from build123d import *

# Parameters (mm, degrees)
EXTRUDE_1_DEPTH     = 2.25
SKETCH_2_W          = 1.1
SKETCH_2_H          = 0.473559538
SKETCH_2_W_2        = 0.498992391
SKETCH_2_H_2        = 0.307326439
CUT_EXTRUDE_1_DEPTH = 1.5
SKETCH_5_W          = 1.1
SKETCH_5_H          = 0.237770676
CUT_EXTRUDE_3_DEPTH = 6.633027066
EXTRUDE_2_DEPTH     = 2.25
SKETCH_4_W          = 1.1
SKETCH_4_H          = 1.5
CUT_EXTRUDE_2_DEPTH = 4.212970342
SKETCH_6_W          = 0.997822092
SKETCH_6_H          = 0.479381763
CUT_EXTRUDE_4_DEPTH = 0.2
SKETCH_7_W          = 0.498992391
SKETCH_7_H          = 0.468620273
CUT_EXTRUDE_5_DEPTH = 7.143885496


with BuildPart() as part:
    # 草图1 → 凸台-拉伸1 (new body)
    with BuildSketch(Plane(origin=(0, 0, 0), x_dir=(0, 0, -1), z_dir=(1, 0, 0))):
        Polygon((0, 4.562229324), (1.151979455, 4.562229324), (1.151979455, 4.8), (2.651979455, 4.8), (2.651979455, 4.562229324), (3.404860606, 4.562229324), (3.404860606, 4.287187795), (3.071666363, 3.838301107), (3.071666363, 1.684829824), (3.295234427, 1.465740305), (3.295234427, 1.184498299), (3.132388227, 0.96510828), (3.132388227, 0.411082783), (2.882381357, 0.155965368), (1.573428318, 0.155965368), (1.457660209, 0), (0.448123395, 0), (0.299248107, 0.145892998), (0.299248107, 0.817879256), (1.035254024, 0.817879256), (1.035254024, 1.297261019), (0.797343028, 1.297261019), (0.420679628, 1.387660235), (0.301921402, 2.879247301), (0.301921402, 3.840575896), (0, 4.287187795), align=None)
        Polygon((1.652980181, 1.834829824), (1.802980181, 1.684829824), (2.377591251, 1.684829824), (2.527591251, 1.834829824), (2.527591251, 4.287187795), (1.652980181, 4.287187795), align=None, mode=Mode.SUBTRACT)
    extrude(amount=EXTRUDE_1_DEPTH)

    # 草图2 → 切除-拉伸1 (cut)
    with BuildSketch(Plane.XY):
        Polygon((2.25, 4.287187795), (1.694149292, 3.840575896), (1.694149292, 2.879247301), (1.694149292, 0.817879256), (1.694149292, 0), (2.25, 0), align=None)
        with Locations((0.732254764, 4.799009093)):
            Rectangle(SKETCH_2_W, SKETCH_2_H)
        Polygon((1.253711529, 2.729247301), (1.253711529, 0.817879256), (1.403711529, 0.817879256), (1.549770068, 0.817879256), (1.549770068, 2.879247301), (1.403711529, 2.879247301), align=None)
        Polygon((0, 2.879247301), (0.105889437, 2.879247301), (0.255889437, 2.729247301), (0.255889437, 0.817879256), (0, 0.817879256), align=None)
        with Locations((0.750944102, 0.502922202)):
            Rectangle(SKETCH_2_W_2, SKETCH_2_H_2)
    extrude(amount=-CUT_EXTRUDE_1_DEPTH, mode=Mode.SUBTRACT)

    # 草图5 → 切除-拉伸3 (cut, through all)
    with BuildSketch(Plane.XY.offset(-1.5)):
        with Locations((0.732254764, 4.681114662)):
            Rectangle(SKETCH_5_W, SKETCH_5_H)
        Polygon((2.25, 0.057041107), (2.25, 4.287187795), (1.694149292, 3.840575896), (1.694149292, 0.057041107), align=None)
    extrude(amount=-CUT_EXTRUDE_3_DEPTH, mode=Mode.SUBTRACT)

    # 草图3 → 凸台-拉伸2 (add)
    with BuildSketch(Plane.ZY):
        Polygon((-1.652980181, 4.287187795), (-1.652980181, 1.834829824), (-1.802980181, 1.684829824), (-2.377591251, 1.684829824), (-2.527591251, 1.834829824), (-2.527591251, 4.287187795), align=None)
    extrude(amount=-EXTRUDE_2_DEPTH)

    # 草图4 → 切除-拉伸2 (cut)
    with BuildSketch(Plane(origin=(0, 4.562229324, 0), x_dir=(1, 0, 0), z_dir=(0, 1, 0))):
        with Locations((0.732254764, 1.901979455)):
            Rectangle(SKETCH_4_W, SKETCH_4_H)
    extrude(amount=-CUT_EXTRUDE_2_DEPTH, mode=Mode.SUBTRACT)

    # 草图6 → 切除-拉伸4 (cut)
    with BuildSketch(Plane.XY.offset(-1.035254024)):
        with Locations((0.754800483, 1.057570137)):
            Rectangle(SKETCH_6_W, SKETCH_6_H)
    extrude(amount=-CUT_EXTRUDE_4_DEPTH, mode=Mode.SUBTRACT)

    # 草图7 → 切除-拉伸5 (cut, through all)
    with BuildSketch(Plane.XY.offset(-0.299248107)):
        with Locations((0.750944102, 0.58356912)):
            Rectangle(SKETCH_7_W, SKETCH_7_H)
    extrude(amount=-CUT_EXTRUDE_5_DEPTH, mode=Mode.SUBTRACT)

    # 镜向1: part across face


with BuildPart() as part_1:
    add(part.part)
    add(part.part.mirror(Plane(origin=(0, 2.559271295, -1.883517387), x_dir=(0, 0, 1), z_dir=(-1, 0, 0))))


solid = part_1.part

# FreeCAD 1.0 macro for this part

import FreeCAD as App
import Part
import Sketcher

V = App.Vector


def add_polygon(sketch, points):
    """Adds a closed chain of lines whose ends are joined by coincident constraints."""
    first, n = sketch.GeometryCount, len(points)
    for a, b in zip(points, points[1:] + points[:1]):
        sketch.addGeometry(Part.LineSegment(App.Vector(*a, 0), App.Vector(*b, 0)), False)
    for i in range(n):
        sketch.addConstraint(Sketcher.Constraint("Coincident", first + i, 2, first + (i + 1) % n, 1))

doc = App.newDocument("Part")
body = doc.addObject("PartDesign::Body", "Body")

# Sketch on YZ plane
sketch1 = body.newObject("Sketcher::SketchObject", "Sketch")
sketch1.AttachmentSupport = (doc.getObject("YZ_Plane"), [""])
sketch1.MapMode = "FlatFace"
add_polygon(sketch1, [(4.56, -1.15), (4.56, 0), (4.29, 0), (3.84, -0.3), (2.88, -0.3), (1.39, -0.42), (1.3, -0.8), (1.3, -1.04), (0.82, -1.04), (0.82, -0.3), (0.15, -0.3), (0, -0.45), (0, -1.46), (0.16, -1.57), (0.16, -2.88), (0.41, -3.13), (0.97, -3.13), (1.18, -3.3), (1.47, -3.3), (1.68, -3.07), (3.84, -3.07), (4.29, -3.4), (4.56, -3.4), (4.56, -2.65), (4.8, -2.65), (4.8, -1.15)])  # lines 0-25
add_polygon(sketch1, [(1.83, -1.65), (4.29, -1.65), (4.29, -2.53), (1.83, -2.53), (1.68, -2.38), (1.68, -1.8)])  # lines 26-31
sketch1.addConstraint(Sketcher.Constraint("Vertical", 0))
sketch1.addConstraint(Sketcher.Constraint("Horizontal", 1))
sketch1.addConstraint(Sketcher.Constraint("Horizontal", 3))
sketch1.addConstraint(Sketcher.Constraint("Vertical", 6))
sketch1.addConstraint(Sketcher.Constraint("Horizontal", 7))
sketch1.addConstraint(Sketcher.Constraint("Vertical", 8))
sketch1.addConstraint(Sketcher.Constraint("Horizontal", 9))
sketch1.addConstraint(Sketcher.Constraint("Vertical", 11))
sketch1.addConstraint(Sketcher.Constraint("Vertical", 13))
sketch1.addConstraint(Sketcher.Constraint("Horizontal", 15))
sketch1.addConstraint(Sketcher.Constraint("Horizontal", 17))
sketch1.addConstraint(Sketcher.Constraint("Horizontal", 19))
sketch1.addConstraint(Sketcher.Constraint("Horizontal", 21))
sketch1.addConstraint(Sketcher.Constraint("Vertical", 22))
sketch1.addConstraint(Sketcher.Constraint("Horizontal", 23))
sketch1.addConstraint(Sketcher.Constraint("Vertical", 24))
sketch1.addConstraint(Sketcher.Constraint("Horizontal", 25))
sketch1.addConstraint(Sketcher.Constraint("Horizontal", 26))
sketch1.addConstraint(Sketcher.Constraint("Vertical", 27))
sketch1.addConstraint(Sketcher.Constraint("Horizontal", 28))
sketch1.addConstraint(Sketcher.Constraint("Vertical", 30))
sketch1.addConstraint(Sketcher.Constraint("PointOnObject", 0, 2, -1))
sketch1.addConstraint(Sketcher.Constraint("PointOnObject", 10, 2, -2))
sketch1.addConstraint(Sketcher.Constraint("Perpendicular", 10, 14))
sketch1.addConstraint(Sketcher.Constraint("Parallel", 12, 16))
sketch1.addConstraint(Sketcher.Constraint("Perpendicular", 14, 18))
sketch1.addConstraint(Sketcher.Constraint("Parallel", 16, 20))
sketch1.addConstraint(Sketcher.Constraint("Perpendicular", 29, 31))
sketch1.addConstraint(Sketcher.Constraint("Vertical", 1, 2, 20, 2))
sketch1.addConstraint(Sketcher.Constraint("Vertical", 0, 2, 21, 2))
sketch1.addConstraint(Sketcher.Constraint("Vertical", 20, 2, 26, 2))
sketch1.addConstraint(Sketcher.Constraint("Vertical", 18, 2, 29, 2))
sketch1.addConstraint(Sketcher.Constraint("Vertical", 28, 2, 31, 2))
sketch1.addConstraint(Sketcher.Constraint("Equal", 29, 31))
sketch1.addConstraint(Sketcher.Constraint("DistanceY", 24, 1, 24, 2, 1.5))
sketch1.addConstraint(Sketcher.Constraint("DistanceX", -1, 1, 23, 2, 4.8))
sketch1.addConstraint(Sketcher.Constraint("DistanceX", 18, 2, 28, 2, 0.15))
sketch1.addConstraint(Sketcher.Constraint("DistanceY", 26, 2, 25, 2, 0.501001))
sketch1.addConstraint(Sketcher.Constraint("DistanceX", 1, 2, 1, 1, 0.275042))
sketch1.addConstraint(Sketcher.Constraint("DistanceX", 3, 2, 3, 1, 0.961329))
sketch1.addConstraint(Sketcher.Constraint("DistanceX", 7, 2, 7, 1, 0.479382))
sketch1.addConstraint(Sketcher.Constraint("DistanceX", 19, 1, 19, 2, 2.153471))
sketch1.addConstraint(Sketcher.Constraint("DistanceX", 23, 1, 23, 2, 0.237771))
sketch1.addConstraint(Sketcher.Constraint("DistanceY", 0, 1, 0, 2, 1.151979))
sketch1.addConstraint(Sketcher.Constraint("DistanceY", 6, 2, 6, 1, 0.237911))
sketch1.addConstraint(Sketcher.Constraint("DistanceY", 22, 1, 22, 2, 0.752881))
sketch1.addConstraint(Sketcher.Constraint("DistanceY", 27, 2, 27, 1, 0.874611))
sketch1.addConstraint(Sketcher.Constraint("DistanceX", -1, 1, 16, 2, 1.184498))
sketch1.addConstraint(Sketcher.Constraint("DistanceX", -1, 1, 19, 2, 3.838301))
sketch1.addConstraint(Sketcher.Constraint("DistanceX", 5, 2, 4, 2, 0.090399))
sketch1.addConstraint(Sketcher.Constraint("Distance", 2, 0.539091))
sketch1.addConstraint(Sketcher.Constraint("Distance", 5, 0.387359))
sketch1.addConstraint(Sketcher.Constraint("DistanceX", 9, 2, 9, 1, 0.671986))
sketch1.addConstraint(Sketcher.Constraint("DistanceX", 15, 1, 15, 2, 0.554025))
sketch1.addConstraint(Sketcher.Constraint("DistanceX", 17, 1, 17, 2, 0.281242))
sketch1.addConstraint(Sketcher.Constraint("DistanceY", 8, 1, 8, 2, 0.736006))
sketch1.addConstraint(Sketcher.Constraint("DistanceY", 11, 2, 11, 1, 1.009537))
sketch1.addConstraint(Sketcher.Constraint("DistanceY", 13, 2, 13, 1, 1.308953))
sketch1.addConstraint(Sketcher.Constraint("DistanceY", 2, 2, -1, 1, 0.301921))
sketch1.addConstraint(Sketcher.Constraint("DistanceX", -1, 1, 4, 2, 1.38766))
sketch1.addConstraint(Sketcher.Constraint("DistanceY", 4, 2, -1, 1, 0.42068))
sketch1.addConstraint(Sketcher.Constraint("DistanceY", 11, 2, -1, 1, 1.45766))
sketch1.addConstraint(Sketcher.Constraint("DistanceY", 12, 2, -1, 1, 1.573428))
sketch1.addConstraint(Sketcher.Constraint("DistanceY", 14, 2, -1, 1, 3.132388))
pad1 = body.newObject("PartDesign::Pad", "Pad")
pad1.Profile = sketch1
pad1.Length = 2.25

# Sketch on XY plane
sketch2 = body.newObject("Sketcher::SketchObject", "Sketch001")
sketch2.AttachmentSupport = (doc.getObject("XY_Plane"), [""])
sketch2.MapMode = "FlatFace"
add_polygon(sketch2, [(2.25, 4.29), (1.69, 3.84), (1.69, 0), (2.25, 0)])  # lines 0-3
add_polygon(sketch2, [(0.18, 5.04), (0.18, 4.56), (1.28, 4.56), (1.28, 5.04)])  # lines 4-7
add_polygon(sketch2, [(1.25, 2.73), (1.25, 0.82), (1.55, 0.82), (1.55, 2.88), (1.4, 2.88)])  # lines 8-12
add_polygon(sketch2, [(0.11, 2.88), (0, 2.88), (0, 0.82), (0.26, 0.82), (0.26, 2.73)])  # lines 13-17
add_polygon(sketch2, [(0.5, 0.66), (0.5, 0.35), (1, 0.35), (1, 0.66)])  # lines 18-21
sketch2.addConstraint(Sketcher.Constraint("Vertical", 1))
sketch2.addConstraint(Sketcher.Constraint("Horizontal", 2))
sketch2.addConstraint(Sketcher.Constraint("Vertical", 3))
sketch2.addConstraint(Sketcher.Constraint("Vertical", 4))
sketch2.addConstraint(Sketcher.Constraint("Horizontal", 5))
sketch2.addConstraint(Sketcher.Constraint("Vertical", 6))
sketch2.addConstraint(Sketcher.Constraint("Horizontal", 7))
sketch2.addConstraint(Sketcher.Constraint("Vertical", 8))
sketch2.addConstraint(Sketcher.Constraint("Horizontal", 9))
sketch2.addConstraint(Sketcher.Constraint("Vertical", 10))
sketch2.addConstraint(Sketcher.Constraint("Horizontal", 11))
sketch2.addConstraint(Sketcher.Constraint("Horizontal", 13))
sketch2.addConstraint(Sketcher.Constraint("Vertical", 14))
sketch2.addConstraint(Sketcher.Constraint("Horizontal", 15))
sketch2.addConstraint(Sketcher.Constraint("Vertical", 16))
sketch2.addConstraint(Sketcher.Constraint("Vertical", 18))
sketch2.addConstraint(Sketcher.Constraint("Horizontal", 19))
sketch2.addConstraint(Sketcher.Constraint("Vertical", 20))
sketch2.addConstraint(Sketcher.Constraint("Horizontal", 21))
sketch2.addConstraint(Sketcher.Constraint("PointOnObject", 1, 2, -1))
sketch2.addConstraint(Sketcher.Constraint("PointOnObject", 13, 2, -2))
sketch2.addConstraint(Sketcher.Constraint("Perpendicular", 12, 17))
sketch2.addConstraint(Sketcher.Constraint("Horizontal", 11, 2, 13, 2))
sketch2.addConstraint(Sketcher.Constraint("Horizontal", 9, 2, 14, 2))
sketch2.addConstraint(Sketcher.Constraint("Horizontal", 12, 2, 16, 2))
sketch2.addConstraint(Sketcher.Constraint("Equal", 12, 17))
sketch2.addConstraint(Sketcher.Constraint("DistanceX", 5, 1, 5, 2, 1.1))
sketch2.addConstraint(Sketcher.Constraint("DistanceX", -1, 1, 2, 2, 2.25))
sketch2.addConstraint(Sketcher.Constraint("DistanceX", 12, 2, 11, 2, 0.15))
sketch2.addConstraint(Sketcher.Constraint("DistanceX", 2, 1, 2, 2, 0.555851))
sketch2.addConstraint(Sketcher.Constraint("DistanceX", 9, 1, 9, 2, 0.296059))
sketch2.addConstraint(Sketcher.Constraint("DistanceX", 13, 2, 13, 1, 0.105889))
sketch2.addConstraint(Sketcher.Constraint("DistanceY", 4, 2, 4, 1, 0.47356))
sketch2.addConstraint(Sketcher.Constraint("DistanceY", 8, 2, 8, 1, 1.911368))
sketch2.addConstraint(Sketcher.Constraint("DistanceY", 3, 2, 6, 2, 0.748601))
sketch2.addConstraint(Sketcher.Constraint("DistanceX", 18, 2, 1, 2, 1.192701))
sketch2.addConstraint(Sketcher.Constraint("DistanceX", 19, 1, 19, 2, 0.498992))
sketch2.addConstraint(Sketcher.Constraint("DistanceY", 1, 2, 1, 1, 3.840576))
sketch2.addConstraint(Sketcher.Constraint("DistanceY", 3, 1, 3, 2, 4.287188))
sketch2.addConstraint(Sketcher.Constraint("DistanceY", 18, 2, 18, 1, 0.307326))
sketch2.addConstraint(Sketcher.Constraint("DistanceX", -1, 1, 8, 2, 1.253712))
sketch2.addConstraint(Sketcher.Constraint("DistanceY", -1, 1, 8, 2, 0.817879))
sketch2.addConstraint(Sketcher.Constraint("DistanceY", -1, 1, 18, 2, 0.349259))
sketch2.addConstraint(Sketcher.Constraint("DistanceX", -1, 1, 4, 2, 0.182255))
pocket1 = body.newObject("PartDesign::Pocket", "Pocket")
pocket1.Profile = sketch2
pocket1.Length = 1.5

# Sketch on XY plane
sketch3 = body.newObject("Sketcher::SketchObject", "Sketch002")
sketch3.AttachmentSupport = (doc.getObject("XY_Plane"), [""])
sketch3.MapMode = "FlatFace"
sketch3.AttachmentOffset = App.Placement(V(0, 0, -1.5), App.Rotation())
add_polygon(sketch3, [(0.18, 4.8), (0.18, 4.56), (1.28, 4.56), (1.28, 4.8)])  # lines 0-3
add_polygon(sketch3, [(2.25, 0.06), (2.25, 4.29), (1.69, 3.84), (1.69, 0.06)])  # lines 4-7
sketch3.addConstraint(Sketcher.Constraint("Vertical", 0))
sketch3.addConstraint(Sketcher.Constraint("Horizontal", 1))
sketch3.addConstraint(Sketcher.Constraint("Vertical", 2))
sketch3.addConstraint(Sketcher.Constraint("Horizontal", 3))
sketch3.addConstraint(Sketcher.Constraint("Vertical", 4))
sketch3.addConstraint(Sketcher.Constraint("Vertical", 6))
sketch3.addConstraint(Sketcher.Constraint("Horizontal", 7))
sketch3.addConstraint(Sketcher.Constraint("DistanceX", 1, 1, 1, 2, 1.1))
sketch3.addConstraint(Sketcher.Constraint("DistanceY", -1, 1, 2, 2, 4.8))
sketch3.addConstraint(Sketcher.Constraint("DistanceX", -1, 1, 4, 2, 2.25))
sketch3.addConstraint(Sketcher.Constraint("DistanceX", 7, 1, 7, 2, 0.555851))
sketch3.addConstraint(Sketcher.Constraint("DistanceY", 0, 2, 0, 1, 0.237771))
sketch3.addConstraint(Sketcher.Constraint("DistanceY", 4, 1, 4, 2, 4.230147))
sketch3.addConstraint(Sketcher.Constraint("DistanceY", 6, 2, 6, 1, 3.783535))
sketch3.addConstraint(Sketcher.Constraint("DistanceY", -1, 1, 6, 2, 0.057041))
sketch3.addConstraint(Sketcher.Constraint("DistanceX", -1, 1, 0, 2, 0.182255))
pocket2 = body.newObject("PartDesign::Pocket", "Pocket001")
pocket2.Profile = sketch3
pocket2.Type = "ThroughAll"

# Sketch on YZ plane
sketch4 = body.newObject("Sketcher::SketchObject", "Sketch003")
sketch4.AttachmentSupport = (doc.getObject("YZ_Plane"), [""])
sketch4.MapMode = "FlatFace"
add_polygon(sketch4, [(1.83, -1.65), (4.29, -1.65), (4.29, -2.53), (1.83, -2.53), (1.68, -2.38), (1.68, -1.8)])  # lines 0-5
sketch4.addConstraint(Sketcher.Constraint("Horizontal", 0))
sketch4.addConstraint(Sketcher.Constraint("Vertical", 1))
sketch4.addConstraint(Sketcher.Constraint("Horizontal", 2))
sketch4.addConstraint(Sketcher.Constraint("Vertical", 4))
sketch4.addConstraint(Sketcher.Constraint("Perpendicular", 3, 5))
sketch4.addConstraint(Sketcher.Constraint("Vertical", 2, 2, 5, 2))
sketch4.addConstraint(Sketcher.Constraint("Equal", 3, 5))
sketch4.addConstraint(Sketcher.Constraint("DistanceX", 3, 2, 2, 2, 0.15))
sketch4.addConstraint(Sketcher.Constraint("DistanceY", 1, 2, 1, 1, 0.874611))
sketch4.addConstraint(Sketcher.Constraint("DistanceX", 0, 1, 0, 2, 2.452358))
sketch4.addConstraint(Sketcher.Constraint("DistanceY", 0, 2, -1, 1, 1.65298))
sketch4.addConstraint(Sketcher.Constraint("DistanceX", -1, 1, 2, 2, 1.83483))
pad2 = body.newObject("PartDesign::Pad", "Pad001")
pad2.Profile = sketch4
pad2.Length = 2.25

# Sketch on XZ plane
sketch5 = body.newObject("Sketcher::SketchObject", "Sketch004")
sketch5.AttachmentSupport = (doc.getObject("XZ_Plane"), [""])
sketch5.MapMode = "FlatFace"
sketch5.AttachmentOffset = App.Placement(V(0, 0, -4.562229), App.Rotation())
add_polygon(sketch5, [(0.2, -2.7), (0.2, -1.2), (1.3, -1.2), (1.3, -2.7)])  # lines 0-3
sketch5.addConstraint(Sketcher.Constraint("Vertical", 0))
sketch5.addConstraint(Sketcher.Constraint("Horizontal", 1))
sketch5.addConstraint(Sketcher.Constraint("Vertical", 2))
sketch5.addConstraint(Sketcher.Constraint("Horizontal", 3))
sketch5.addConstraint(Sketcher.Constraint("DistanceX", 1, 1, 1, 2, 1.1))
sketch5.addConstraint(Sketcher.Constraint("DistanceY", 0, 1, 0, 2, 1.5))
sketch5.addConstraint(Sketcher.Constraint("DistanceY", 0, 2, -1, 1, 1.151979))
sketch5.addConstraint(Sketcher.Constraint("DistanceX", -1, 1, 0, 2, 0.182255))
pocket3 = body.newObject("PartDesign::Pocket", "Pocket002")
pocket3.Profile = sketch5
pocket3.Length = 4.21297
pocket3.Reversed = True

# Sketch on XY plane
sketch6 = body.newObject("Sketcher::SketchObject", "Sketch005")
sketch6.AttachmentSupport = (doc.getObject("XY_Plane"), [""])
sketch6.MapMode = "FlatFace"
sketch6.AttachmentOffset = App.Placement(V(0, 0, -1.035254), App.Rotation())
add_polygon(sketch6, [(0.26, 1.3), (0.26, 0.82), (1.25, 0.82), (1.25, 1.3)])  # lines 0-3
sketch6.addConstraint(Sketcher.Constraint("Vertical", 0))
sketch6.addConstraint(Sketcher.Constraint("Horizontal", 1))
sketch6.addConstraint(Sketcher.Constraint("Vertical", 2))
sketch6.addConstraint(Sketcher.Constraint("Horizontal", 3))
sketch6.addConstraint(Sketcher.Constraint("DistanceY", 0, 2, 0, 1, 0.479382))
sketch6.addConstraint(Sketcher.Constraint("DistanceX", 1, 1, 1, 2, 0.997822))
sketch6.addConstraint(Sketcher.Constraint("DistanceX", -1, 1, 0, 2, 0.255889))
sketch6.addConstraint(Sketcher.Constraint("DistanceY", -1, 1, 0, 2, 0.817879))
pocket4 = body.newObject("PartDesign::Pocket", "Pocket003")
pocket4.Profile = sketch6
pocket4.Length = 0.2

# Sketch on XY plane
sketch7 = body.newObject("Sketcher::SketchObject", "Sketch006")
sketch7.AttachmentSupport = (doc.getObject("XY_Plane"), [""])
sketch7.MapMode = "FlatFace"
sketch7.AttachmentOffset = App.Placement(V(0, 0, -0.299248), App.Rotation())
add_polygon(sketch7, [(0.5, 0.82), (0.5, 0.35), (1, 0.35), (1, 0.82)])  # lines 0-3
sketch7.addConstraint(Sketcher.Constraint("Vertical", 0))
sketch7.addConstraint(Sketcher.Constraint("Horizontal", 1))
sketch7.addConstraint(Sketcher.Constraint("Vertical", 2))
sketch7.addConstraint(Sketcher.Constraint("Horizontal", 3))
sketch7.addConstraint(Sketcher.Constraint("DistanceY", 0, 2, 0, 1, 0.46862))
sketch7.addConstraint(Sketcher.Constraint("DistanceX", 1, 1, 1, 2, 0.498992))
sketch7.addConstraint(Sketcher.Constraint("DistanceY", -1, 1, 0, 2, 0.349259))
sketch7.addConstraint(Sketcher.Constraint("DistanceX", -1, 1, 1, 2, 1.00044))
pocket5 = body.newObject("PartDesign::Pocket", "Pocket004")
pocket5.Profile = sketch7
pocket5.Type = "ThroughAll"
body2 = doc.addObject("PartDesign::Body", "Body001")
doc.recompute()

body2.BaseFeature = body
doc.recompute()

mirroring = doc.addObject("Part::Mirroring", "Mirroring")
mirroring.Source = body
mirroring.Base = V(0, 2.559271, -1.883517)
mirroring.Normal = V(-1, 0, 0)
body3 = doc.addObject("PartDesign::Body", "Body002")
body3.BaseFeature = mirroring
boolean = body2.newObject("PartDesign::Boolean", "Boolean")
boolean.Type = "Fuse"
boolean.addObjects([body3])
doc.recompute()
mirroring.Visibility = False

doc.recompute()
